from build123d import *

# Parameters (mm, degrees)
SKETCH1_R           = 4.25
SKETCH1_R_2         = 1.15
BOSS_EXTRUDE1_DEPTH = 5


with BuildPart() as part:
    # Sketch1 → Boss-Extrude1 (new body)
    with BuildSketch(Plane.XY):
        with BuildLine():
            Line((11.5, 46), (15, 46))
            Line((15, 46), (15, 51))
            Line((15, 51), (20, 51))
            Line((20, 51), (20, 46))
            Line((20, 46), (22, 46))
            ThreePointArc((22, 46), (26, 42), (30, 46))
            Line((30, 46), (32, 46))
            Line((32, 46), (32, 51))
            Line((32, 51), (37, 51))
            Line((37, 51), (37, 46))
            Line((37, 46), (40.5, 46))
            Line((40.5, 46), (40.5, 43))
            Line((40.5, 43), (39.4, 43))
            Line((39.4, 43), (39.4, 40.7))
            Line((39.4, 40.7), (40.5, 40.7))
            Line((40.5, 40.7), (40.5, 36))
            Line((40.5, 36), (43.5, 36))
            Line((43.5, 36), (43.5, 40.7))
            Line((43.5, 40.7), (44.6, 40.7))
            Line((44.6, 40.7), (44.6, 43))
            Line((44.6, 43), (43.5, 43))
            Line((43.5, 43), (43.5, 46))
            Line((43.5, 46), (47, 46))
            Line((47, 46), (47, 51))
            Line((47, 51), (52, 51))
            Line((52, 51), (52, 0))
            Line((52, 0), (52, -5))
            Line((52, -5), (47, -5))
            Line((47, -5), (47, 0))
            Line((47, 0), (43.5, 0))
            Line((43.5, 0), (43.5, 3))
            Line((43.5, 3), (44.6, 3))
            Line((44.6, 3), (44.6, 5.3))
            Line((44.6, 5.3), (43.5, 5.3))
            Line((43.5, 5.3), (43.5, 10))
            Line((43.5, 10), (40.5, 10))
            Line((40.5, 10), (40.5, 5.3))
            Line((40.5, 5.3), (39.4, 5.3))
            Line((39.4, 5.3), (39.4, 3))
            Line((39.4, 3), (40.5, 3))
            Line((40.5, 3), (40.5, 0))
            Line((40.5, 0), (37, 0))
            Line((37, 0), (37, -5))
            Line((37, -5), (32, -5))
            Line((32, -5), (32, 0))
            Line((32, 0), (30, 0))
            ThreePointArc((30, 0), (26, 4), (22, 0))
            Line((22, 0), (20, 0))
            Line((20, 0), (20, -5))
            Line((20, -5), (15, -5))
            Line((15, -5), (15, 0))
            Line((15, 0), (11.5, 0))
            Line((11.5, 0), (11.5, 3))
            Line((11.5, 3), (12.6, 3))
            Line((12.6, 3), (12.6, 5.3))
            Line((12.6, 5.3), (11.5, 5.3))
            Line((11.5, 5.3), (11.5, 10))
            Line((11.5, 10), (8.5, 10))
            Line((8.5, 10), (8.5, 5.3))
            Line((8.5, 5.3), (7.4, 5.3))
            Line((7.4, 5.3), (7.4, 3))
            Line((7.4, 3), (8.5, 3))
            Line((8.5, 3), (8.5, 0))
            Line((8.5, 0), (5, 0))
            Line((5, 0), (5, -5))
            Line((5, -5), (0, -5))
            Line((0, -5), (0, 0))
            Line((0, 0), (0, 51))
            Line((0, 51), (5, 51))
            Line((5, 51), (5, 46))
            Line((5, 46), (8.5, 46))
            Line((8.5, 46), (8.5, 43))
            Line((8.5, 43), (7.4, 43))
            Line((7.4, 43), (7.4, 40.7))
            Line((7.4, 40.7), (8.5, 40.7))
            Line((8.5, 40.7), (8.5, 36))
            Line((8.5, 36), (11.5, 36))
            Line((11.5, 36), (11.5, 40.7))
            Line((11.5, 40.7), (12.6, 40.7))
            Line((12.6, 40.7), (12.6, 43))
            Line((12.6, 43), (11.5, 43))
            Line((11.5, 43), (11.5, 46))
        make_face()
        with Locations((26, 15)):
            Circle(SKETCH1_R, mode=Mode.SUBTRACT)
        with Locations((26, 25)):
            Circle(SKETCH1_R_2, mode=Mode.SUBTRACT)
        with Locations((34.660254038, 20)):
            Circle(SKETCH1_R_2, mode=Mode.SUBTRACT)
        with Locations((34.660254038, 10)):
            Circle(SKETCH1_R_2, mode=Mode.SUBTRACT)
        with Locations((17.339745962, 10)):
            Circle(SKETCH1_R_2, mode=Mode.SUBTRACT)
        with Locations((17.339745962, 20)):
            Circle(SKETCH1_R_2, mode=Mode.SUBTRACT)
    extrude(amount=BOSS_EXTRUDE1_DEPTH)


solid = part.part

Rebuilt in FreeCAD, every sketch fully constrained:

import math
import FreeCAD as App
import Part
import Sketcher

V = App.Vector

doc = App.newDocument("Part")
body = doc.addObject("PartDesign::Body", "Body")

# Sketch on XY plane
sketch1 = body.newObject("Sketcher::SketchObject", "Sketch")
sketch1.AttachmentSupport = (doc.getObject("XY_Plane"), [""])
sketch1.MapMode = "FlatFace"
sketch1.addGeometry(Part.LineSegment(V(15, 46, 0), V(11.5, 46, 0)), False)
sketch1.addGeometry(Part.LineSegment(V(11.5, 46, 0), V(11.5, 43, 0)), False)
sketch1.addGeometry(Part.LineSegment(V(11.5, 43, 0), V(12.6, 43, 0)), False)
sketch1.addGeometry(Part.LineSegment(V(12.6, 43, 0), V(12.6, 40.7, 0)), False)
sketch1.addGeometry(Part.LineSegment(V(12.6, 40.7, 0), V(11.5, 40.7, 0)), False)
sketch1.addGeometry(Part.LineSegment(V(11.5, 40.7, 0), V(11.5, 36, 0)), False)
sketch1.addGeometry(Part.LineSegment(V(11.5, 36, 0), V(8.5, 36, 0)), False)
sketch1.addGeometry(Part.LineSegment(V(8.5, 36, 0), V(8.5, 40.7, 0)), False)
sketch1.addGeometry(Part.LineSegment(V(8.5, 40.7, 0), V(7.4, 40.7, 0)), False)
sketch1.addGeometry(Part.LineSegment(V(7.4, 40.7, 0), V(7.4, 43, 0)), False)
sketch1.addGeometry(Part.LineSegment(V(7.4, 43, 0), V(8.5, 43, 0)), False)
sketch1.addGeometry(Part.LineSegment(V(8.5, 43, 0), V(8.5, 46, 0)), False)
sketch1.addGeometry(Part.LineSegment(V(8.5, 46, 0), V(5, 46, 0)), False)
sketch1.addGeometry(Part.LineSegment(V(5, 46, 0), V(5, 51, 0)), False)
sketch1.addGeometry(Part.LineSegment(V(5, 51, 0), V(0, 51, 0)), False)
sketch1.addGeometry(Part.LineSegment(V(0, 51, 0), V(0, -5, 0)), False)
sketch1.addGeometry(Part.LineSegment(V(0, -5, 0), V(5, -5, 0)), False)
sketch1.addGeometry(Part.LineSegment(V(5, -5, 0), V(5, 0, 0)), False)
sketch1.addGeometry(Part.LineSegment(V(5, 0, 0), V(8.5, 0, 0)), False)
sketch1.addGeometry(Part.LineSegment(V(8.5, 0, 0), V(8.5, 3, 0)), False)
sketch1.addGeometry(Part.LineSegment(V(8.5, 3, 0), V(7.4, 3, 0)), False)
sketch1.addGeometry(Part.LineSegment(V(7.4, 3, 0), V(7.4, 5.3, 0)), False)
sketch1.addGeometry(Part.LineSegment(V(7.4, 5.3, 0), V(8.5, 5.3, 0)), False)
sketch1.addGeometry(Part.LineSegment(V(8.5, 5.3, 0), V(8.5, 10, 0)), False)
sketch1.addGeometry(Part.LineSegment(V(8.5, 10, 0), V(11.5, 10, 0)), False)
sketch1.addGeometry(Part.LineSegment(V(11.5, 10, 0), V(11.5, 5.3, 0)), False)
sketch1.addGeometry(Part.LineSegment(V(11.5, 5.3, 0), V(12.6, 5.3, 0)), False)
sketch1.addGeometry(Part.LineSegment(V(12.6, 5.3, 0), V(12.6, 3, 0)), False)
sketch1.addGeometry(Part.LineSegment(V(12.6, 3, 0), V(11.5, 3, 0)), False)
sketch1.addGeometry(Part.LineSegment(V(11.5, 3, 0), V(11.5, 0, 0)), False)
sketch1.addGeometry(Part.LineSegment(V(11.5, 0, 0), V(15, 0, 0)), False)
sketch1.addGeometry(Part.LineSegment(V(15, 0, 0), V(15, -5, 0)), False)
sketch1.addGeometry(Part.LineSegment(V(15, -5, 0), V(20, -5, 0)), False)
sketch1.addGeometry(Part.LineSegment(V(20, -5, 0), V(20, 0, 0)), False)
sketch1.addGeometry(Part.LineSegment(V(20, 0, 0), V(22, 0, 0)), False)
sketch1.addGeometry(Part.ArcOfCircle(Part.Circle(V(26, 0, 0), V(0, 0, 1), 4), math.radians(0), math.radians(180)), False)
sketch1.addGeometry(Part.LineSegment(V(30, 0, 0), V(32, 0, 0)), False)
sketch1.addGeometry(Part.LineSegment(V(32, 0, 0), V(32, -5, 0)), False)
sketch1.addGeometry(Part.LineSegment(V(32, -5, 0), V(37, -5, 0)), False)
sketch1.addGeometry(Part.LineSegment(V(37, -5, 0), V(37, 0, 0)), False)
sketch1.addGeometry(Part.LineSegment(V(37, 0, 0), V(40.5, 0, 0)), False)
sketch1.addGeometry(Part.LineSegment(V(40.5, 0, 0), V(40.5, 3, 0)), False)
sketch1.addGeometry(Part.LineSegment(V(40.5, 3, 0), V(39.4, 3, 0)), False)
sketch1.addGeometry(Part.LineSegment(V(39.4, 3, 0), V(39.4, 5.3, 0)), False)
sketch1.addGeometry(Part.LineSegment(V(39.4, 5.3, 0), V(40.5, 5.3, 0)), False)
sketch1.addGeometry(Part.LineSegment(V(40.5, 5.3, 0), V(40.5, 10, 0)), False)
sketch1.addGeometry(Part.LineSegment(V(40.5, 10, 0), V(43.5, 10, 0)), False)
sketch1.addGeometry(Part.LineSegment(V(43.5, 10, 0), V(43.5, 5.3, 0)), False)
sketch1.addGeometry(Part.LineSegment(V(43.5, 5.3, 0), V(44.6, 5.3, 0)), False)
sketch1.addGeometry(Part.LineSegment(V(44.6, 5.3, 0), V(44.6, 3, 0)), False)
sketch1.addGeometry(Part.LineSegment(V(44.6, 3, 0), V(43.5, 3, 0)), False)
sketch1.addGeometry(Part.LineSegment(V(43.5, 3, 0), V(43.5, 0, 0)), False)
sketch1.addGeometry(Part.LineSegment(V(43.5, 0, 0), V(47, 0, 0)), False)
sketch1.addGeometry(Part.LineSegment(V(47, 0, 0), V(47, -5, 0)), False)
sketch1.addGeometry(Part.LineSegment(V(47, -5, 0), V(52, -5, 0)), False)
sketch1.addGeometry(Part.LineSegment(V(52, -5, 0), V(52, 51, 0)), False)
sketch1.addGeometry(Part.LineSegment(V(52, 51, 0), V(47, 51, 0)), False)
sketch1.addGeometry(Part.LineSegment(V(47, 51, 0), V(47, 46, 0)), False)
sketch1.addGeometry(Part.LineSegment(V(47, 46, 0), V(43.5, 46, 0)), False)
sketch1.addGeometry(Part.LineSegment(V(43.5, 46, 0), V(43.5, 43, 0)), False)
sketch1.addGeometry(Part.LineSegment(V(43.5, 43, 0), V(44.6, 43, 0)), False)
sketch1.addGeometry(Part.LineSegment(V(44.6, 43, 0), V(44.6, 40.7, 0)), False)
sketch1.addGeometry(Part.LineSegment(V(44.6, 40.7, 0), V(43.5, 40.7, 0)), False)
sketch1.addGeometry(Part.LineSegment(V(43.5, 40.7, 0), V(43.5, 36, 0)), False)
sketch1.addGeometry(Part.LineSegment(V(43.5, 36, 0), V(40.5, 36, 0)), False)
sketch1.addGeometry(Part.LineSegment(V(40.5, 36, 0), V(40.5, 40.7, 0)), False)
sketch1.addGeometry(Part.LineSegment(V(40.5, 40.7, 0), V(39.4, 40.7, 0)), False)
sketch1.addGeometry(Part.LineSegment(V(39.4, 40.7, 0), V(39.4, 43, 0)), False)
sketch1.addGeometry(Part.LineSegment(V(39.4, 43, 0), V(40.5, 43, 0)), False)
sketch1.addGeometry(Part.LineSegment(V(40.5, 43, 0), V(40.5, 46, 0)), False)
sketch1.addGeometry(Part.LineSegment(V(40.5, 46, 0), V(37, 46, 0)), False)
sketch1.addGeometry(Part.LineSegment(V(37, 46, 0), V(37, 51, 0)), False)
sketch1.addGeometry(Part.LineSegment(V(37, 51, 0), V(32, 51, 0)), False)
sketch1.addGeometry(Part.LineSegment(V(32, 51, 0), V(32, 46, 0)), False)
sketch1.addGeometry(Part.LineSegment(V(32, 46, 0), V(30, 46, 0)), False)
sketch1.addGeometry(Part.ArcOfCircle(Part.Circle(V(26, 46, 0), V(0, 0, 1), 4), math.radians(180), math.radians(360)), False)
sketch1.addGeometry(Part.LineSegment(V(22, 46, 0), V(20, 46, 0)), False)
sketch1.addGeometry(Part.LineSegment(V(20, 46, 0), V(20, 51, 0)), False)
sketch1.addGeometry(Part.LineSegment(V(20, 51, 0), V(15, 51, 0)), False)
sketch1.addGeometry(Part.LineSegment(V(15, 51, 0), V(15, 46, 0)), False)
sketch1.addGeometry(Part.Circle(V(34.7, 10, 0), V(0, 0, 1), 1.1), False)
sketch1.addGeometry(Part.Circle(V(26, 15, 0), V(0, 0, 1), 4.2), False)
sketch1.addGeometry(Part.Circle(V(17.3, 10, 0), V(0, 0, 1), 1.1), False)
sketch1.addGeometry(Part.Circle(V(34.7, 20, 0), V(0, 0, 1), 1.1), False)
sketch1.addGeometry(Part.Circle(V(26, 25, 0), V(0, 0, 1), 1.1), False)
sketch1.addGeometry(Part.Circle(V(17.3, 20, 0), V(0, 0, 1), 1.1), False)
sketch1.addConstraint(Sketcher.Constraint("Coincident", 0, 2, 1, 1))
sketch1.addConstraint(Sketcher.Constraint("Coincident", 1, 2, 2, 1))
sketch1.addConstraint(Sketcher.Constraint("Coincident", 2, 2, 3, 1))
sketch1.addConstraint(Sketcher.Constraint("Coincident", 3, 2, 4, 1))
sketch1.addConstraint(Sketcher.Constraint("Coincident", 4, 2, 5, 1))
sketch1.addConstraint(Sketcher.Constraint("Coincident", 5, 2, 6, 1))
sketch1.addConstraint(Sketcher.Constraint("Coincident", 6, 2, 7, 1))
sketch1.addConstraint(Sketcher.Constraint("Coincident", 7, 2, 8, 1))
sketch1.addConstraint(Sketcher.Constraint("Coincident", 8, 2, 9, 1))
sketch1.addConstraint(Sketcher.Constraint("Coincident", 9, 2, 10, 1))
sketch1.addConstraint(Sketcher.Constraint("Coincident", 10, 2, 11, 1))
sketch1.addConstraint(Sketcher.Constraint("Coincident", 11, 2, 12, 1))
sketch1.addConstraint(Sketcher.Constraint("Coincident", 12, 2, 13, 1))
sketch1.addConstraint(Sketcher.Constraint("Coincident", 13, 2, 14, 1))
sketch1.addConstraint(Sketcher.Constraint("Coincident", 14, 2, 15, 1))
sketch1.addConstraint(Sketcher.Constraint("Coincident", 15, 2, 16, 1))
sketch1.addConstraint(Sketcher.Constraint("Coincident", 16, 2, 17, 1))
sketch1.addConstraint(Sketcher.Constraint("Coincident", 17, 2, 18, 1))
sketch1.addConstraint(Sketcher.Constraint("Coincident", 18, 2, 19, 1))
sketch1.addConstraint(Sketcher.Constraint("Coincident", 19, 2, 20, 1))
sketch1.addConstraint(Sketcher.Constraint("Coincident", 20, 2, 21, 1))
sketch1.addConstraint(Sketcher.Constraint("Coincident", 21, 2, 22, 1))
sketch1.addConstraint(Sketcher.Constraint("Coincident", 22, 2, 23, 1))
sketch1.addConstraint(Sketcher.Constraint("Coincident", 23, 2, 24, 1))
sketch1.addConstraint(Sketcher.Constraint("Coincident", 24, 2, 25, 1))
sketch1.addConstraint(Sketcher.Constraint("Coincident", 25, 2, 26, 1))
sketch1.addConstraint(Sketcher.Constraint("Coincident", 26, 2, 27, 1))
sketch1.addConstraint(Sketcher.Constraint("Coincident", 27, 2, 28, 1))
sketch1.addConstraint(Sketcher.Constraint("Coincident", 28, 2, 29, 1))
sketch1.addConstraint(Sketcher.Constraint("Coincident", 29, 2, 30, 1))
sketch1.addConstraint(Sketcher.Constraint("Coincident", 30, 2, 31, 1))
sketch1.addConstraint(Sketcher.Constraint("Coincident", 31, 2, 32, 1))
sketch1.addConstraint(Sketcher.Constraint("Coincident", 32, 2, 33, 1))
sketch1.addConstraint(Sketcher.Constraint("Coincident", 33, 2, 34, 1))
sketch1.addConstraint(Sketcher.Constraint("Coincident", 34, 2, 35, 2))
sketch1.addConstraint(Sketcher.Constraint("Coincident", 35, 1, 36, 1))
sketch1.addConstraint(Sketcher.Constraint("Coincident", 36, 2, 37, 1))
sketch1.addConstraint(Sketcher.Constraint("Coincident", 37, 2, 38, 1))
sketch1.addConstraint(Sketcher.Constraint("Coincident", 38, 2, 39, 1))
sketch1.addConstraint(Sketcher.Constraint("Coincident", 39, 2, 40, 1))
sketch1.addConstraint(Sketcher.Constraint("Coincident", 40, 2, 41, 1))
sketch1.addConstraint(Sketcher.Constraint("Coincident", 41, 2, 42, 1))
sketch1.addConstraint(Sketcher.Constraint("Coincident", 42, 2, 43, 1))
sketch1.addConstraint(Sketcher.Constraint("Coincident", 43, 2, 44, 1))
sketch1.addConstraint(Sketcher.Constraint("Coincident", 44, 2, 45, 1))
sketch1.addConstraint(Sketcher.Constraint("Coincident", 45, 2, 46, 1))
sketch1.addConstraint(Sketcher.Constraint("Coincident", 46, 2, 47, 1))
sketch1.addConstraint(Sketcher.Constraint("Coincident", 47, 2, 48, 1))
sketch1.addConstraint(Sketcher.Constraint("Coincident", 48, 2, 49, 1))
sketch1.addConstraint(Sketcher.Constraint("Coincident", 49, 2, 50, 1))
sketch1.addConstraint(Sketcher.Constraint("Coincident", 50, 2, 51, 1))
sketch1.addConstraint(Sketcher.Constraint("Coincident", 51, 2, 52, 1))
sketch1.addConstraint(Sketcher.Constraint("Coincident", 52, 2, 53, 1))
sketch1.addConstraint(Sketcher.Constraint("Coincident", 53, 2, 54, 1))
sketch1.addConstraint(Sketcher.Constraint("Coincident", 54, 2, 55, 1))
sketch1.addConstraint(Sketcher.Constraint("Coincident", 55, 2, 56, 1))
sketch1.addConstraint(Sketcher.Constraint("Coincident", 56, 2, 57, 1))
sketch1.addConstraint(Sketcher.Constraint("Coincident", 57, 2, 58, 1))
sketch1.addConstraint(Sketcher.Constraint("Coincident", 58, 2, 59, 1))
sketch1.addConstraint(Sketcher.Constraint("Coincident", 59, 2, 60, 1))
sketch1.addConstraint(Sketcher.Constraint("Coincident", 60, 2, 61, 1))
sketch1.addConstraint(Sketcher.Constraint("Coincident", 61, 2, 62, 1))
sketch1.addConstraint(Sketcher.Constraint("Coincident", 62, 2, 63, 1))
sketch1.addConstraint(Sketcher.Constraint("Coincident", 63, 2, 64, 1))
sketch1.addConstraint(Sketcher.Constraint("Coincident", 64, 2, 65, 1))
sketch1.addConstraint(Sketcher.Constraint("Coincident", 65, 2, 66, 1))
sketch1.addConstraint(Sketcher.Constraint("Coincident", 66, 2, 67, 1))
sketch1.addConstraint(Sketcher.Constraint("Coincident", 67, 2, 68, 1))
sketch1.addConstraint(Sketcher.Constraint("Coincident", 68, 2, 69, 1))
sketch1.addConstraint(Sketcher.Constraint("Coincident", 69, 2, 70, 1))
sketch1.addConstraint(Sketcher.Constraint("Coincident", 70, 2, 71, 1))
sketch1.addConstraint(Sketcher.Constraint("Coincident", 71, 2, 72, 1))
sketch1.addConstraint(Sketcher.Constraint("Coincident", 72, 2, 73, 1))
sketch1.addConstraint(Sketcher.Constraint("Coincident", 73, 2, 74, 1))
sketch1.addConstraint(Sketcher.Constraint("Coincident", 74, 2, 75, 2))
sketch1.addConstraint(Sketcher.Constraint("Coincident", 75, 1, 76, 1))
sketch1.addConstraint(Sketcher.Constraint("Coincident", 76, 2, 77, 1))
sketch1.addConstraint(Sketcher.Constraint("Coincident", 77, 2, 78, 1))
sketch1.addConstraint(Sketcher.Constraint("Coincident", 78, 2, 79, 1))
sketch1.addConstraint(Sketcher.Constraint("Coincident", 79, 2, 0, 1))
sketch1.addConstraint(Sketcher.Constraint("Horizontal", 0))
sketch1.addConstraint(Sketcher.Constraint("Vertical", 1))
sketch1.addConstraint(Sketcher.Constraint("Horizontal", 2))
sketch1.addConstraint(Sketcher.Constraint("Vertical", 3))
sketch1.addConstraint(Sketcher.Constraint("Horizontal", 4))
sketch1.addConstraint(Sketcher.Constraint("Vertical", 5))
sketch1.addConstraint(Sketcher.Constraint("Horizontal", 6))
sketch1.addConstraint(Sketcher.Constraint("Vertical", 7))
sketch1.addConstraint(Sketcher.Constraint("Horizontal", 8))
sketch1.addConstraint(Sketcher.Constraint("Vertical", 9))
sketch1.addConstraint(Sketcher.Constraint("Horizontal", 10))
sketch1.addConstraint(Sketcher.Constraint("Vertical", 11))
sketch1.addConstraint(Sketcher.Constraint("Horizontal", 12))
sketch1.addConstraint(Sketcher.Constraint("Vertical", 13))
sketch1.addConstraint(Sketcher.Constraint("Horizontal", 14))
sketch1.addConstraint(Sketcher.Constraint("Vertical", 15))
sketch1.addConstraint(Sketcher.Constraint("Horizontal", 16))
sketch1.addConstraint(Sketcher.Constraint("Vertical", 17))
sketch1.addConstraint(Sketcher.Constraint("Horizontal", 18))
sketch1.addConstraint(Sketcher.Constraint("Vertical", 19))
sketch1.addConstraint(Sketcher.Constraint("Horizontal", 20))
sketch1.addConstraint(Sketcher.Constraint("Vertical", 21))
sketch1.addConstraint(Sketcher.Constraint("Horizontal", 22))
sketch1.addConstraint(Sketcher.Constraint("Vertical", 23))
sketch1.addConstraint(Sketcher.Constraint("Horizontal", 24))
sketch1.addConstraint(Sketcher.Constraint("Vertical", 25))
sketch1.addConstraint(Sketcher.Constraint("Horizontal", 26))
sketch1.addConstraint(Sketcher.Constraint("Vertical", 27))
sketch1.addConstraint(Sketcher.Constraint("Horizontal", 28))
sketch1.addConstraint(Sketcher.Constraint("Vertical", 29))
sketch1.addConstraint(Sketcher.Constraint("Horizontal", 30))
sketch1.addConstraint(Sketcher.Constraint("Vertical", 31))
sketch1.addConstraint(Sketcher.Constraint("Horizontal", 32))
sketch1.addConstraint(Sketcher.Constraint("Vertical", 33))
sketch1.addConstraint(Sketcher.Constraint("Horizontal", 34))
sketch1.addConstraint(Sketcher.Constraint("Horizontal", 36))
sketch1.addConstraint(Sketcher.Constraint("Vertical", 37))
sketch1.addConstraint(Sketcher.Constraint("Horizontal", 38))
sketch1.addConstraint(Sketcher.Constraint("Vertical", 39))
sketch1.addConstraint(Sketcher.Constraint("Horizontal", 40))
sketch1.addConstraint(Sketcher.Constraint("Vertical", 41))
sketch1.addConstraint(Sketcher.Constraint("Horizontal", 42))
sketch1.addConstraint(Sketcher.Constraint("Vertical", 43))
sketch1.addConstraint(Sketcher.Constraint("Horizontal", 44))
sketch1.addConstraint(Sketcher.Constraint("Vertical", 45))
sketch1.addConstraint(Sketcher.Constraint("Horizontal", 46))
sketch1.addConstraint(Sketcher.Constraint("Vertical", 47))
sketch1.addConstraint(Sketcher.Constraint("Horizontal", 48))
sketch1.addConstraint(Sketcher.Constraint("Vertical", 49))
sketch1.addConstraint(Sketcher.Constraint("Horizontal", 50))
sketch1.addConstraint(Sketcher.Constraint("Vertical", 51))
sketch1.addConstraint(Sketcher.Constraint("Horizontal", 52))
sketch1.addConstraint(Sketcher.Constraint("Vertical", 53))
sketch1.addConstraint(Sketcher.Constraint("Horizontal", 54))
sketch1.addConstraint(Sketcher.Constraint("Vertical", 55))
sketch1.addConstraint(Sketcher.Constraint("Horizontal", 56))
sketch1.addConstraint(Sketcher.Constraint("Vertical", 57))
sketch1.addConstraint(Sketcher.Constraint("Horizontal", 58))
sketch1.addConstraint(Sketcher.Constraint("Vertical", 59))
sketch1.addConstraint(Sketcher.Constraint("Horizontal", 60))
sketch1.addConstraint(Sketcher.Constraint("Vertical", 61))
sketch1.addConstraint(Sketcher.Constraint("Horizontal", 62))
sketch1.addConstraint(Sketcher.Constraint("Vertical", 63))
sketch1.addConstraint(Sketcher.Constraint("Horizontal", 64))
sketch1.addConstraint(Sketcher.Constraint("Vertical", 65))
sketch1.addConstraint(Sketcher.Constraint("Horizontal", 66))
sketch1.addConstraint(Sketcher.Constraint("Vertical", 67))
sketch1.addConstraint(Sketcher.Constraint("Horizontal", 68))
sketch1.addConstraint(Sketcher.Constraint("Vertical", 69))
sketch1.addConstraint(Sketcher.Constraint("Horizontal", 70))
sketch1.addConstraint(Sketcher.Constraint("Vertical", 71))
sketch1.addConstraint(Sketcher.Constraint("Horizontal", 72))
sketch1.addConstraint(Sketcher.Constraint("Vertical", 73))
sketch1.addConstraint(Sketcher.Constraint("Horizontal", 74))
sketch1.addConstraint(Sketcher.Constraint("Horizontal", 76))
sketch1.addConstraint(Sketcher.Constraint("Vertical", 77))
sketch1.addConstraint(Sketcher.Constraint("Horizontal", 78))
sketch1.addConstraint(Sketcher.Constraint("Vertical", 79))
sketch1.addConstraint(Sketcher.Constraint("Equal", 35, 75))
sketch1.addConstraint(Sketcher.Constraint("Equal", 80, 82))
sketch1.addConstraint(Sketcher.Constraint("Equal", 82, 83))
sketch1.addConstraint(Sketcher.Constraint("Equal", 83, 84))
sketch1.addConstraint(Sketcher.Constraint("Equal", 84, 85))
sketch1.addConstraint(Sketcher.Constraint("PointOnObject", 35, 3, -1))
sketch1.addConstraint(Sketcher.Constraint("PointOnObject", 14, 2, -2))
sketch1.addConstraint(Sketcher.Constraint("PointOnObject", 17, 2, -1))
sketch1.addConstraint(Sketcher.Constraint("PointOnObject", 29, 2, -1))
sketch1.addConstraint(Sketcher.Constraint("PointOnObject", 33, 2, -1))
sketch1.addConstraint(Sketcher.Constraint("PointOnObject", 35, 1, -1))
sketch1.addConstraint(Sketcher.Constraint("PointOnObject", 39, 2, -1))
sketch1.addConstraint(Sketcher.Constraint("PointOnObject", 51, 2, -1))
sketch1.addConstraint(Sketcher.Constraint("Horizontal", 80, 3, 82, 3))
sketch1.addConstraint(Sketcher.Constraint("Horizontal", 83, 3, 85, 3))
sketch1.addConstraint(Sketcher.Constraint("Horizontal", 75, 3, 0, 2))
sketch1.addConstraint(Sketcher.Constraint("Horizontal", 4, 2, 7, 2))
sketch1.addConstraint(Sketcher.Constraint("Horizontal", 2, 2, 9, 2))
sketch1.addConstraint(Sketcher.Constraint("Horizontal", 0, 2, 11, 2))
sketch1.addConstraint(Sketcher.Constraint("Horizontal", 82, 3, 23, 2))
sketch1.addConstraint(Sketcher.Constraint("Horizontal", 22, 2, 25, 2))
sketch1.addConstraint(Sketcher.Constraint("Horizontal", 20, 2, 27, 2))
sketch1.addConstraint(Sketcher.Constraint("Horizontal", 16, 2, 31, 2))
sketch1.addConstraint(Sketcher.Constraint("Horizontal", 32, 2, 37, 2))
sketch1.addConstraint(Sketcher.Constraint("Horizontal", 28, 2, 41, 2))
sketch1.addConstraint(Sketcher.Constraint("Horizontal", 26, 2, 43, 2))
sketch1.addConstraint(Sketcher.Constraint("Horizontal", 24, 2, 45, 2))
sketch1.addConstraint(Sketcher.Constraint("Horizontal", 44, 2, 47, 2))
sketch1.addConstraint(Sketcher.Constraint("Horizontal", 42, 2, 49, 2))
sketch1.addConstraint(Sketcher.Constraint("Horizontal", 38, 2, 53, 2))
sketch1.addConstraint(Sketcher.Constraint("Horizontal", 14, 2, 55, 2))
sketch1.addConstraint(Sketcher.Constraint("Horizontal", 12, 2, 57, 2))
sketch1.addConstraint(Sketcher.Constraint("Horizontal", 10, 2, 59, 2))
sketch1.addConstraint(Sketcher.Constraint("Horizontal", 8, 2, 61, 2))
sketch1.addConstraint(Sketcher.Constraint("Horizontal", 6, 2, 63, 2))
sketch1.addConstraint(Sketcher.Constraint("Horizontal", 62, 2, 65, 2))
sketch1.addConstraint(Sketcher.Constraint("Horizontal", 60, 2, 67, 2))
sketch1.addConstraint(Sketcher.Constraint("Horizontal", 58, 2, 69, 2))
sketch1.addConstraint(Sketcher.Constraint("Horizontal", 56, 2, 71, 2))
sketch1.addConstraint(Sketcher.Constraint("Horizontal", 70, 2, 73, 2))
sketch1.addConstraint(Sketcher.Constraint("Horizontal", 74, 2, 75, 1))
sketch1.addConstraint(Sketcher.Constraint("Horizontal", 72, 2, 77, 2))
sketch1.addConstraint(Sketcher.Constraint("Vertical", 35, 3, 75, 3))
sketch1.addConstraint(Sketcher.Constraint("Vertical", 75, 3, 81, 3))
sketch1.addConstraint(Sketcher.Constraint("Vertical", 80, 3, 83, 3))
sketch1.addConstraint(Sketcher.Constraint("Vertical", 81, 3, 84, 3))
sketch1.addConstraint(Sketcher.Constraint("Vertical", 82, 3, 85, 3))
sketch1.addConstraint(Sketcher.Constraint("Vertical", 1, 2, 4, 2))
sketch1.addConstraint(Sketcher.Constraint("Vertical", 7, 2, 10, 2))
sketch1.addConstraint(Sketcher.Constraint("Vertical", 13, 2, 16, 2))
sketch1.addConstraint(Sketcher.Constraint("Vertical", 11, 2, 18, 2))
sketch1.addConstraint(Sketcher.Constraint("Vertical", 9, 2, 20, 2))
sketch1.addConstraint(Sketcher.Constraint("Vertical", 19, 2, 22, 2))
sketch1.addConstraint(Sketcher.Constraint("Vertical", 5, 2, 24, 2))
sketch1.addConstraint(Sketcher.Constraint("Vertical", 3, 2, 26, 2))
sketch1.addConstraint(Sketcher.Constraint("Vertical", 25, 2, 28, 2))
sketch1.addConstraint(Sketcher.Constraint("Vertical", 41, 2, 44, 2))
sketch1.addConstraint(Sketcher.Constraint("Vertical", 47, 2, 50, 2))
sketch1.addConstraint(Sketcher.Constraint("Vertical", 53, 2, 56, 2))
sketch1.addConstraint(Sketcher.Constraint("Vertical", 51, 2, 58, 2))
sketch1.addConstraint(Sketcher.Constraint("Vertical", 49, 2, 60, 2))
sketch1.addConstraint(Sketcher.Constraint("Vertical", 59, 2, 62, 2))
sketch1.addConstraint(Sketcher.Constraint("Vertical", 45, 2, 64, 2))
sketch1.addConstraint(Sketcher.Constraint("Vertical", 43, 2, 66, 2))
sketch1.addConstraint(Sketcher.Constraint("Vertical", 65, 2, 68, 2))
sketch1.addConstraint(Sketcher.Constraint("Vertical", 39, 2, 70, 2))
sketch1.addConstraint(Sketcher.Constraint("Vertical", 37, 2, 72, 2))
sketch1.addConstraint(Sketcher.Constraint("Vertical", 33, 2, 76, 2))
sketch1.addConstraint(Sketcher.Constraint("Vertical", 31, 2, 78, 2))
sketch1.addConstraint(Sketcher.Constraint("Equal", 4, 8))
sketch1.addConstraint(Sketcher.Constraint("Equal", 0, 12))
sketch1.addConstraint(Sketcher.Constraint("Equal", 16, 32))
sketch1.addConstraint(Sketcher.Constraint("Equal", 34, 36))
sketch1.addConstraint(Sketcher.Constraint("Equal", 32, 38))
sketch1.addConstraint(Sketcher.Constraint("Equal", 30, 40))
sketch1.addConstraint(Sketcher.Constraint("Equal", 28, 42))
sketch1.addConstraint(Sketcher.Constraint("Equal", 24, 46))
sketch1.addConstraint(Sketcher.Constraint("Equal", 44, 48))
sketch1.addConstraint(Sketcher.Constraint("Equal", 40, 52))
sketch1.addConstraint(Sketcher.Constraint("Equal", 38, 54))
sketch1.addConstraint(Sketcher.Constraint("Equal", 64, 1))
sketch1.addConstraint(Sketcher.Constraint("Equal", 78, 13))
sketch1.addConstraint(Sketcher.Constraint("Equal", 13, 17))
sketch1.addConstraint(Sketcher.Constraint("Equal", 11, 19))
sketch1.addConstraint(Sketcher.Constraint("Equal", 9, 21))
sketch1.addConstraint(Sketcher.Constraint("Equal", 7, 23))
sketch1.addConstraint(Sketcher.Constraint("Radius", 35, 4.0))
sketch1.addConstraint(Sketcher.Constraint("Diameter", 80, 2.3))
sketch1.addConstraint(Sketcher.Constraint("Diameter", 81, 8.5))
sketch1.addConstraint(Sketcher.Constraint("DistanceX", 6, 2, 6, 1, 3.0))
sketch1.addConstraint(Sketcher.Constraint("DistanceX", 14, 2, 14, 1, 5.0))
sketch1.addConstraint(Sketcher.Constraint("DistanceX", 34, 1, 34, 2, 2.0))
sketch1.addConstraint(Sketcher.Constraint("DistanceY", 15, 2, 15, 1, 56.0))
sketch1.addConstraint(Sketcher.Constraint("DistanceX", 0, 2, 0, 1, 3.5))
sketch1.addConstraint(Sketcher.Constraint("DistanceX", 2, 1, 2, 2, 1.1))
sketch1.addConstraint(Sketcher.Constraint("DistanceY", 3, 2, 3, 1, 2.3))
sketch1.addConstraint(Sketcher.Constraint("DistanceY", 5, 2, 5, 1, 4.7))
sketch1.addConstraint(Sketcher.Constraint("DistanceY", -1, 1, 81, 3, 15.0))
sketch1.addConstraint(Sketcher.Constraint("DistanceY", -1, 1, 83, 3, 20.0))
sketch1.addConstraint(Sketcher.Constraint("DistanceY", -1, 1, 84, 3, 25.0))
sketch1.addConstraint(Sketcher.Constraint("DistanceX", -1, 1, 80, 3, 34.660254))
sketch1.addConstraint(Sketcher.Constraint("DistanceX", -1, 1, 82, 3, 17.339746))
pad1 = body.newObject("PartDesign::Pad", "Pad")
pad1.Profile = sketch1
pad1.Length = 5

doc.recompute()
